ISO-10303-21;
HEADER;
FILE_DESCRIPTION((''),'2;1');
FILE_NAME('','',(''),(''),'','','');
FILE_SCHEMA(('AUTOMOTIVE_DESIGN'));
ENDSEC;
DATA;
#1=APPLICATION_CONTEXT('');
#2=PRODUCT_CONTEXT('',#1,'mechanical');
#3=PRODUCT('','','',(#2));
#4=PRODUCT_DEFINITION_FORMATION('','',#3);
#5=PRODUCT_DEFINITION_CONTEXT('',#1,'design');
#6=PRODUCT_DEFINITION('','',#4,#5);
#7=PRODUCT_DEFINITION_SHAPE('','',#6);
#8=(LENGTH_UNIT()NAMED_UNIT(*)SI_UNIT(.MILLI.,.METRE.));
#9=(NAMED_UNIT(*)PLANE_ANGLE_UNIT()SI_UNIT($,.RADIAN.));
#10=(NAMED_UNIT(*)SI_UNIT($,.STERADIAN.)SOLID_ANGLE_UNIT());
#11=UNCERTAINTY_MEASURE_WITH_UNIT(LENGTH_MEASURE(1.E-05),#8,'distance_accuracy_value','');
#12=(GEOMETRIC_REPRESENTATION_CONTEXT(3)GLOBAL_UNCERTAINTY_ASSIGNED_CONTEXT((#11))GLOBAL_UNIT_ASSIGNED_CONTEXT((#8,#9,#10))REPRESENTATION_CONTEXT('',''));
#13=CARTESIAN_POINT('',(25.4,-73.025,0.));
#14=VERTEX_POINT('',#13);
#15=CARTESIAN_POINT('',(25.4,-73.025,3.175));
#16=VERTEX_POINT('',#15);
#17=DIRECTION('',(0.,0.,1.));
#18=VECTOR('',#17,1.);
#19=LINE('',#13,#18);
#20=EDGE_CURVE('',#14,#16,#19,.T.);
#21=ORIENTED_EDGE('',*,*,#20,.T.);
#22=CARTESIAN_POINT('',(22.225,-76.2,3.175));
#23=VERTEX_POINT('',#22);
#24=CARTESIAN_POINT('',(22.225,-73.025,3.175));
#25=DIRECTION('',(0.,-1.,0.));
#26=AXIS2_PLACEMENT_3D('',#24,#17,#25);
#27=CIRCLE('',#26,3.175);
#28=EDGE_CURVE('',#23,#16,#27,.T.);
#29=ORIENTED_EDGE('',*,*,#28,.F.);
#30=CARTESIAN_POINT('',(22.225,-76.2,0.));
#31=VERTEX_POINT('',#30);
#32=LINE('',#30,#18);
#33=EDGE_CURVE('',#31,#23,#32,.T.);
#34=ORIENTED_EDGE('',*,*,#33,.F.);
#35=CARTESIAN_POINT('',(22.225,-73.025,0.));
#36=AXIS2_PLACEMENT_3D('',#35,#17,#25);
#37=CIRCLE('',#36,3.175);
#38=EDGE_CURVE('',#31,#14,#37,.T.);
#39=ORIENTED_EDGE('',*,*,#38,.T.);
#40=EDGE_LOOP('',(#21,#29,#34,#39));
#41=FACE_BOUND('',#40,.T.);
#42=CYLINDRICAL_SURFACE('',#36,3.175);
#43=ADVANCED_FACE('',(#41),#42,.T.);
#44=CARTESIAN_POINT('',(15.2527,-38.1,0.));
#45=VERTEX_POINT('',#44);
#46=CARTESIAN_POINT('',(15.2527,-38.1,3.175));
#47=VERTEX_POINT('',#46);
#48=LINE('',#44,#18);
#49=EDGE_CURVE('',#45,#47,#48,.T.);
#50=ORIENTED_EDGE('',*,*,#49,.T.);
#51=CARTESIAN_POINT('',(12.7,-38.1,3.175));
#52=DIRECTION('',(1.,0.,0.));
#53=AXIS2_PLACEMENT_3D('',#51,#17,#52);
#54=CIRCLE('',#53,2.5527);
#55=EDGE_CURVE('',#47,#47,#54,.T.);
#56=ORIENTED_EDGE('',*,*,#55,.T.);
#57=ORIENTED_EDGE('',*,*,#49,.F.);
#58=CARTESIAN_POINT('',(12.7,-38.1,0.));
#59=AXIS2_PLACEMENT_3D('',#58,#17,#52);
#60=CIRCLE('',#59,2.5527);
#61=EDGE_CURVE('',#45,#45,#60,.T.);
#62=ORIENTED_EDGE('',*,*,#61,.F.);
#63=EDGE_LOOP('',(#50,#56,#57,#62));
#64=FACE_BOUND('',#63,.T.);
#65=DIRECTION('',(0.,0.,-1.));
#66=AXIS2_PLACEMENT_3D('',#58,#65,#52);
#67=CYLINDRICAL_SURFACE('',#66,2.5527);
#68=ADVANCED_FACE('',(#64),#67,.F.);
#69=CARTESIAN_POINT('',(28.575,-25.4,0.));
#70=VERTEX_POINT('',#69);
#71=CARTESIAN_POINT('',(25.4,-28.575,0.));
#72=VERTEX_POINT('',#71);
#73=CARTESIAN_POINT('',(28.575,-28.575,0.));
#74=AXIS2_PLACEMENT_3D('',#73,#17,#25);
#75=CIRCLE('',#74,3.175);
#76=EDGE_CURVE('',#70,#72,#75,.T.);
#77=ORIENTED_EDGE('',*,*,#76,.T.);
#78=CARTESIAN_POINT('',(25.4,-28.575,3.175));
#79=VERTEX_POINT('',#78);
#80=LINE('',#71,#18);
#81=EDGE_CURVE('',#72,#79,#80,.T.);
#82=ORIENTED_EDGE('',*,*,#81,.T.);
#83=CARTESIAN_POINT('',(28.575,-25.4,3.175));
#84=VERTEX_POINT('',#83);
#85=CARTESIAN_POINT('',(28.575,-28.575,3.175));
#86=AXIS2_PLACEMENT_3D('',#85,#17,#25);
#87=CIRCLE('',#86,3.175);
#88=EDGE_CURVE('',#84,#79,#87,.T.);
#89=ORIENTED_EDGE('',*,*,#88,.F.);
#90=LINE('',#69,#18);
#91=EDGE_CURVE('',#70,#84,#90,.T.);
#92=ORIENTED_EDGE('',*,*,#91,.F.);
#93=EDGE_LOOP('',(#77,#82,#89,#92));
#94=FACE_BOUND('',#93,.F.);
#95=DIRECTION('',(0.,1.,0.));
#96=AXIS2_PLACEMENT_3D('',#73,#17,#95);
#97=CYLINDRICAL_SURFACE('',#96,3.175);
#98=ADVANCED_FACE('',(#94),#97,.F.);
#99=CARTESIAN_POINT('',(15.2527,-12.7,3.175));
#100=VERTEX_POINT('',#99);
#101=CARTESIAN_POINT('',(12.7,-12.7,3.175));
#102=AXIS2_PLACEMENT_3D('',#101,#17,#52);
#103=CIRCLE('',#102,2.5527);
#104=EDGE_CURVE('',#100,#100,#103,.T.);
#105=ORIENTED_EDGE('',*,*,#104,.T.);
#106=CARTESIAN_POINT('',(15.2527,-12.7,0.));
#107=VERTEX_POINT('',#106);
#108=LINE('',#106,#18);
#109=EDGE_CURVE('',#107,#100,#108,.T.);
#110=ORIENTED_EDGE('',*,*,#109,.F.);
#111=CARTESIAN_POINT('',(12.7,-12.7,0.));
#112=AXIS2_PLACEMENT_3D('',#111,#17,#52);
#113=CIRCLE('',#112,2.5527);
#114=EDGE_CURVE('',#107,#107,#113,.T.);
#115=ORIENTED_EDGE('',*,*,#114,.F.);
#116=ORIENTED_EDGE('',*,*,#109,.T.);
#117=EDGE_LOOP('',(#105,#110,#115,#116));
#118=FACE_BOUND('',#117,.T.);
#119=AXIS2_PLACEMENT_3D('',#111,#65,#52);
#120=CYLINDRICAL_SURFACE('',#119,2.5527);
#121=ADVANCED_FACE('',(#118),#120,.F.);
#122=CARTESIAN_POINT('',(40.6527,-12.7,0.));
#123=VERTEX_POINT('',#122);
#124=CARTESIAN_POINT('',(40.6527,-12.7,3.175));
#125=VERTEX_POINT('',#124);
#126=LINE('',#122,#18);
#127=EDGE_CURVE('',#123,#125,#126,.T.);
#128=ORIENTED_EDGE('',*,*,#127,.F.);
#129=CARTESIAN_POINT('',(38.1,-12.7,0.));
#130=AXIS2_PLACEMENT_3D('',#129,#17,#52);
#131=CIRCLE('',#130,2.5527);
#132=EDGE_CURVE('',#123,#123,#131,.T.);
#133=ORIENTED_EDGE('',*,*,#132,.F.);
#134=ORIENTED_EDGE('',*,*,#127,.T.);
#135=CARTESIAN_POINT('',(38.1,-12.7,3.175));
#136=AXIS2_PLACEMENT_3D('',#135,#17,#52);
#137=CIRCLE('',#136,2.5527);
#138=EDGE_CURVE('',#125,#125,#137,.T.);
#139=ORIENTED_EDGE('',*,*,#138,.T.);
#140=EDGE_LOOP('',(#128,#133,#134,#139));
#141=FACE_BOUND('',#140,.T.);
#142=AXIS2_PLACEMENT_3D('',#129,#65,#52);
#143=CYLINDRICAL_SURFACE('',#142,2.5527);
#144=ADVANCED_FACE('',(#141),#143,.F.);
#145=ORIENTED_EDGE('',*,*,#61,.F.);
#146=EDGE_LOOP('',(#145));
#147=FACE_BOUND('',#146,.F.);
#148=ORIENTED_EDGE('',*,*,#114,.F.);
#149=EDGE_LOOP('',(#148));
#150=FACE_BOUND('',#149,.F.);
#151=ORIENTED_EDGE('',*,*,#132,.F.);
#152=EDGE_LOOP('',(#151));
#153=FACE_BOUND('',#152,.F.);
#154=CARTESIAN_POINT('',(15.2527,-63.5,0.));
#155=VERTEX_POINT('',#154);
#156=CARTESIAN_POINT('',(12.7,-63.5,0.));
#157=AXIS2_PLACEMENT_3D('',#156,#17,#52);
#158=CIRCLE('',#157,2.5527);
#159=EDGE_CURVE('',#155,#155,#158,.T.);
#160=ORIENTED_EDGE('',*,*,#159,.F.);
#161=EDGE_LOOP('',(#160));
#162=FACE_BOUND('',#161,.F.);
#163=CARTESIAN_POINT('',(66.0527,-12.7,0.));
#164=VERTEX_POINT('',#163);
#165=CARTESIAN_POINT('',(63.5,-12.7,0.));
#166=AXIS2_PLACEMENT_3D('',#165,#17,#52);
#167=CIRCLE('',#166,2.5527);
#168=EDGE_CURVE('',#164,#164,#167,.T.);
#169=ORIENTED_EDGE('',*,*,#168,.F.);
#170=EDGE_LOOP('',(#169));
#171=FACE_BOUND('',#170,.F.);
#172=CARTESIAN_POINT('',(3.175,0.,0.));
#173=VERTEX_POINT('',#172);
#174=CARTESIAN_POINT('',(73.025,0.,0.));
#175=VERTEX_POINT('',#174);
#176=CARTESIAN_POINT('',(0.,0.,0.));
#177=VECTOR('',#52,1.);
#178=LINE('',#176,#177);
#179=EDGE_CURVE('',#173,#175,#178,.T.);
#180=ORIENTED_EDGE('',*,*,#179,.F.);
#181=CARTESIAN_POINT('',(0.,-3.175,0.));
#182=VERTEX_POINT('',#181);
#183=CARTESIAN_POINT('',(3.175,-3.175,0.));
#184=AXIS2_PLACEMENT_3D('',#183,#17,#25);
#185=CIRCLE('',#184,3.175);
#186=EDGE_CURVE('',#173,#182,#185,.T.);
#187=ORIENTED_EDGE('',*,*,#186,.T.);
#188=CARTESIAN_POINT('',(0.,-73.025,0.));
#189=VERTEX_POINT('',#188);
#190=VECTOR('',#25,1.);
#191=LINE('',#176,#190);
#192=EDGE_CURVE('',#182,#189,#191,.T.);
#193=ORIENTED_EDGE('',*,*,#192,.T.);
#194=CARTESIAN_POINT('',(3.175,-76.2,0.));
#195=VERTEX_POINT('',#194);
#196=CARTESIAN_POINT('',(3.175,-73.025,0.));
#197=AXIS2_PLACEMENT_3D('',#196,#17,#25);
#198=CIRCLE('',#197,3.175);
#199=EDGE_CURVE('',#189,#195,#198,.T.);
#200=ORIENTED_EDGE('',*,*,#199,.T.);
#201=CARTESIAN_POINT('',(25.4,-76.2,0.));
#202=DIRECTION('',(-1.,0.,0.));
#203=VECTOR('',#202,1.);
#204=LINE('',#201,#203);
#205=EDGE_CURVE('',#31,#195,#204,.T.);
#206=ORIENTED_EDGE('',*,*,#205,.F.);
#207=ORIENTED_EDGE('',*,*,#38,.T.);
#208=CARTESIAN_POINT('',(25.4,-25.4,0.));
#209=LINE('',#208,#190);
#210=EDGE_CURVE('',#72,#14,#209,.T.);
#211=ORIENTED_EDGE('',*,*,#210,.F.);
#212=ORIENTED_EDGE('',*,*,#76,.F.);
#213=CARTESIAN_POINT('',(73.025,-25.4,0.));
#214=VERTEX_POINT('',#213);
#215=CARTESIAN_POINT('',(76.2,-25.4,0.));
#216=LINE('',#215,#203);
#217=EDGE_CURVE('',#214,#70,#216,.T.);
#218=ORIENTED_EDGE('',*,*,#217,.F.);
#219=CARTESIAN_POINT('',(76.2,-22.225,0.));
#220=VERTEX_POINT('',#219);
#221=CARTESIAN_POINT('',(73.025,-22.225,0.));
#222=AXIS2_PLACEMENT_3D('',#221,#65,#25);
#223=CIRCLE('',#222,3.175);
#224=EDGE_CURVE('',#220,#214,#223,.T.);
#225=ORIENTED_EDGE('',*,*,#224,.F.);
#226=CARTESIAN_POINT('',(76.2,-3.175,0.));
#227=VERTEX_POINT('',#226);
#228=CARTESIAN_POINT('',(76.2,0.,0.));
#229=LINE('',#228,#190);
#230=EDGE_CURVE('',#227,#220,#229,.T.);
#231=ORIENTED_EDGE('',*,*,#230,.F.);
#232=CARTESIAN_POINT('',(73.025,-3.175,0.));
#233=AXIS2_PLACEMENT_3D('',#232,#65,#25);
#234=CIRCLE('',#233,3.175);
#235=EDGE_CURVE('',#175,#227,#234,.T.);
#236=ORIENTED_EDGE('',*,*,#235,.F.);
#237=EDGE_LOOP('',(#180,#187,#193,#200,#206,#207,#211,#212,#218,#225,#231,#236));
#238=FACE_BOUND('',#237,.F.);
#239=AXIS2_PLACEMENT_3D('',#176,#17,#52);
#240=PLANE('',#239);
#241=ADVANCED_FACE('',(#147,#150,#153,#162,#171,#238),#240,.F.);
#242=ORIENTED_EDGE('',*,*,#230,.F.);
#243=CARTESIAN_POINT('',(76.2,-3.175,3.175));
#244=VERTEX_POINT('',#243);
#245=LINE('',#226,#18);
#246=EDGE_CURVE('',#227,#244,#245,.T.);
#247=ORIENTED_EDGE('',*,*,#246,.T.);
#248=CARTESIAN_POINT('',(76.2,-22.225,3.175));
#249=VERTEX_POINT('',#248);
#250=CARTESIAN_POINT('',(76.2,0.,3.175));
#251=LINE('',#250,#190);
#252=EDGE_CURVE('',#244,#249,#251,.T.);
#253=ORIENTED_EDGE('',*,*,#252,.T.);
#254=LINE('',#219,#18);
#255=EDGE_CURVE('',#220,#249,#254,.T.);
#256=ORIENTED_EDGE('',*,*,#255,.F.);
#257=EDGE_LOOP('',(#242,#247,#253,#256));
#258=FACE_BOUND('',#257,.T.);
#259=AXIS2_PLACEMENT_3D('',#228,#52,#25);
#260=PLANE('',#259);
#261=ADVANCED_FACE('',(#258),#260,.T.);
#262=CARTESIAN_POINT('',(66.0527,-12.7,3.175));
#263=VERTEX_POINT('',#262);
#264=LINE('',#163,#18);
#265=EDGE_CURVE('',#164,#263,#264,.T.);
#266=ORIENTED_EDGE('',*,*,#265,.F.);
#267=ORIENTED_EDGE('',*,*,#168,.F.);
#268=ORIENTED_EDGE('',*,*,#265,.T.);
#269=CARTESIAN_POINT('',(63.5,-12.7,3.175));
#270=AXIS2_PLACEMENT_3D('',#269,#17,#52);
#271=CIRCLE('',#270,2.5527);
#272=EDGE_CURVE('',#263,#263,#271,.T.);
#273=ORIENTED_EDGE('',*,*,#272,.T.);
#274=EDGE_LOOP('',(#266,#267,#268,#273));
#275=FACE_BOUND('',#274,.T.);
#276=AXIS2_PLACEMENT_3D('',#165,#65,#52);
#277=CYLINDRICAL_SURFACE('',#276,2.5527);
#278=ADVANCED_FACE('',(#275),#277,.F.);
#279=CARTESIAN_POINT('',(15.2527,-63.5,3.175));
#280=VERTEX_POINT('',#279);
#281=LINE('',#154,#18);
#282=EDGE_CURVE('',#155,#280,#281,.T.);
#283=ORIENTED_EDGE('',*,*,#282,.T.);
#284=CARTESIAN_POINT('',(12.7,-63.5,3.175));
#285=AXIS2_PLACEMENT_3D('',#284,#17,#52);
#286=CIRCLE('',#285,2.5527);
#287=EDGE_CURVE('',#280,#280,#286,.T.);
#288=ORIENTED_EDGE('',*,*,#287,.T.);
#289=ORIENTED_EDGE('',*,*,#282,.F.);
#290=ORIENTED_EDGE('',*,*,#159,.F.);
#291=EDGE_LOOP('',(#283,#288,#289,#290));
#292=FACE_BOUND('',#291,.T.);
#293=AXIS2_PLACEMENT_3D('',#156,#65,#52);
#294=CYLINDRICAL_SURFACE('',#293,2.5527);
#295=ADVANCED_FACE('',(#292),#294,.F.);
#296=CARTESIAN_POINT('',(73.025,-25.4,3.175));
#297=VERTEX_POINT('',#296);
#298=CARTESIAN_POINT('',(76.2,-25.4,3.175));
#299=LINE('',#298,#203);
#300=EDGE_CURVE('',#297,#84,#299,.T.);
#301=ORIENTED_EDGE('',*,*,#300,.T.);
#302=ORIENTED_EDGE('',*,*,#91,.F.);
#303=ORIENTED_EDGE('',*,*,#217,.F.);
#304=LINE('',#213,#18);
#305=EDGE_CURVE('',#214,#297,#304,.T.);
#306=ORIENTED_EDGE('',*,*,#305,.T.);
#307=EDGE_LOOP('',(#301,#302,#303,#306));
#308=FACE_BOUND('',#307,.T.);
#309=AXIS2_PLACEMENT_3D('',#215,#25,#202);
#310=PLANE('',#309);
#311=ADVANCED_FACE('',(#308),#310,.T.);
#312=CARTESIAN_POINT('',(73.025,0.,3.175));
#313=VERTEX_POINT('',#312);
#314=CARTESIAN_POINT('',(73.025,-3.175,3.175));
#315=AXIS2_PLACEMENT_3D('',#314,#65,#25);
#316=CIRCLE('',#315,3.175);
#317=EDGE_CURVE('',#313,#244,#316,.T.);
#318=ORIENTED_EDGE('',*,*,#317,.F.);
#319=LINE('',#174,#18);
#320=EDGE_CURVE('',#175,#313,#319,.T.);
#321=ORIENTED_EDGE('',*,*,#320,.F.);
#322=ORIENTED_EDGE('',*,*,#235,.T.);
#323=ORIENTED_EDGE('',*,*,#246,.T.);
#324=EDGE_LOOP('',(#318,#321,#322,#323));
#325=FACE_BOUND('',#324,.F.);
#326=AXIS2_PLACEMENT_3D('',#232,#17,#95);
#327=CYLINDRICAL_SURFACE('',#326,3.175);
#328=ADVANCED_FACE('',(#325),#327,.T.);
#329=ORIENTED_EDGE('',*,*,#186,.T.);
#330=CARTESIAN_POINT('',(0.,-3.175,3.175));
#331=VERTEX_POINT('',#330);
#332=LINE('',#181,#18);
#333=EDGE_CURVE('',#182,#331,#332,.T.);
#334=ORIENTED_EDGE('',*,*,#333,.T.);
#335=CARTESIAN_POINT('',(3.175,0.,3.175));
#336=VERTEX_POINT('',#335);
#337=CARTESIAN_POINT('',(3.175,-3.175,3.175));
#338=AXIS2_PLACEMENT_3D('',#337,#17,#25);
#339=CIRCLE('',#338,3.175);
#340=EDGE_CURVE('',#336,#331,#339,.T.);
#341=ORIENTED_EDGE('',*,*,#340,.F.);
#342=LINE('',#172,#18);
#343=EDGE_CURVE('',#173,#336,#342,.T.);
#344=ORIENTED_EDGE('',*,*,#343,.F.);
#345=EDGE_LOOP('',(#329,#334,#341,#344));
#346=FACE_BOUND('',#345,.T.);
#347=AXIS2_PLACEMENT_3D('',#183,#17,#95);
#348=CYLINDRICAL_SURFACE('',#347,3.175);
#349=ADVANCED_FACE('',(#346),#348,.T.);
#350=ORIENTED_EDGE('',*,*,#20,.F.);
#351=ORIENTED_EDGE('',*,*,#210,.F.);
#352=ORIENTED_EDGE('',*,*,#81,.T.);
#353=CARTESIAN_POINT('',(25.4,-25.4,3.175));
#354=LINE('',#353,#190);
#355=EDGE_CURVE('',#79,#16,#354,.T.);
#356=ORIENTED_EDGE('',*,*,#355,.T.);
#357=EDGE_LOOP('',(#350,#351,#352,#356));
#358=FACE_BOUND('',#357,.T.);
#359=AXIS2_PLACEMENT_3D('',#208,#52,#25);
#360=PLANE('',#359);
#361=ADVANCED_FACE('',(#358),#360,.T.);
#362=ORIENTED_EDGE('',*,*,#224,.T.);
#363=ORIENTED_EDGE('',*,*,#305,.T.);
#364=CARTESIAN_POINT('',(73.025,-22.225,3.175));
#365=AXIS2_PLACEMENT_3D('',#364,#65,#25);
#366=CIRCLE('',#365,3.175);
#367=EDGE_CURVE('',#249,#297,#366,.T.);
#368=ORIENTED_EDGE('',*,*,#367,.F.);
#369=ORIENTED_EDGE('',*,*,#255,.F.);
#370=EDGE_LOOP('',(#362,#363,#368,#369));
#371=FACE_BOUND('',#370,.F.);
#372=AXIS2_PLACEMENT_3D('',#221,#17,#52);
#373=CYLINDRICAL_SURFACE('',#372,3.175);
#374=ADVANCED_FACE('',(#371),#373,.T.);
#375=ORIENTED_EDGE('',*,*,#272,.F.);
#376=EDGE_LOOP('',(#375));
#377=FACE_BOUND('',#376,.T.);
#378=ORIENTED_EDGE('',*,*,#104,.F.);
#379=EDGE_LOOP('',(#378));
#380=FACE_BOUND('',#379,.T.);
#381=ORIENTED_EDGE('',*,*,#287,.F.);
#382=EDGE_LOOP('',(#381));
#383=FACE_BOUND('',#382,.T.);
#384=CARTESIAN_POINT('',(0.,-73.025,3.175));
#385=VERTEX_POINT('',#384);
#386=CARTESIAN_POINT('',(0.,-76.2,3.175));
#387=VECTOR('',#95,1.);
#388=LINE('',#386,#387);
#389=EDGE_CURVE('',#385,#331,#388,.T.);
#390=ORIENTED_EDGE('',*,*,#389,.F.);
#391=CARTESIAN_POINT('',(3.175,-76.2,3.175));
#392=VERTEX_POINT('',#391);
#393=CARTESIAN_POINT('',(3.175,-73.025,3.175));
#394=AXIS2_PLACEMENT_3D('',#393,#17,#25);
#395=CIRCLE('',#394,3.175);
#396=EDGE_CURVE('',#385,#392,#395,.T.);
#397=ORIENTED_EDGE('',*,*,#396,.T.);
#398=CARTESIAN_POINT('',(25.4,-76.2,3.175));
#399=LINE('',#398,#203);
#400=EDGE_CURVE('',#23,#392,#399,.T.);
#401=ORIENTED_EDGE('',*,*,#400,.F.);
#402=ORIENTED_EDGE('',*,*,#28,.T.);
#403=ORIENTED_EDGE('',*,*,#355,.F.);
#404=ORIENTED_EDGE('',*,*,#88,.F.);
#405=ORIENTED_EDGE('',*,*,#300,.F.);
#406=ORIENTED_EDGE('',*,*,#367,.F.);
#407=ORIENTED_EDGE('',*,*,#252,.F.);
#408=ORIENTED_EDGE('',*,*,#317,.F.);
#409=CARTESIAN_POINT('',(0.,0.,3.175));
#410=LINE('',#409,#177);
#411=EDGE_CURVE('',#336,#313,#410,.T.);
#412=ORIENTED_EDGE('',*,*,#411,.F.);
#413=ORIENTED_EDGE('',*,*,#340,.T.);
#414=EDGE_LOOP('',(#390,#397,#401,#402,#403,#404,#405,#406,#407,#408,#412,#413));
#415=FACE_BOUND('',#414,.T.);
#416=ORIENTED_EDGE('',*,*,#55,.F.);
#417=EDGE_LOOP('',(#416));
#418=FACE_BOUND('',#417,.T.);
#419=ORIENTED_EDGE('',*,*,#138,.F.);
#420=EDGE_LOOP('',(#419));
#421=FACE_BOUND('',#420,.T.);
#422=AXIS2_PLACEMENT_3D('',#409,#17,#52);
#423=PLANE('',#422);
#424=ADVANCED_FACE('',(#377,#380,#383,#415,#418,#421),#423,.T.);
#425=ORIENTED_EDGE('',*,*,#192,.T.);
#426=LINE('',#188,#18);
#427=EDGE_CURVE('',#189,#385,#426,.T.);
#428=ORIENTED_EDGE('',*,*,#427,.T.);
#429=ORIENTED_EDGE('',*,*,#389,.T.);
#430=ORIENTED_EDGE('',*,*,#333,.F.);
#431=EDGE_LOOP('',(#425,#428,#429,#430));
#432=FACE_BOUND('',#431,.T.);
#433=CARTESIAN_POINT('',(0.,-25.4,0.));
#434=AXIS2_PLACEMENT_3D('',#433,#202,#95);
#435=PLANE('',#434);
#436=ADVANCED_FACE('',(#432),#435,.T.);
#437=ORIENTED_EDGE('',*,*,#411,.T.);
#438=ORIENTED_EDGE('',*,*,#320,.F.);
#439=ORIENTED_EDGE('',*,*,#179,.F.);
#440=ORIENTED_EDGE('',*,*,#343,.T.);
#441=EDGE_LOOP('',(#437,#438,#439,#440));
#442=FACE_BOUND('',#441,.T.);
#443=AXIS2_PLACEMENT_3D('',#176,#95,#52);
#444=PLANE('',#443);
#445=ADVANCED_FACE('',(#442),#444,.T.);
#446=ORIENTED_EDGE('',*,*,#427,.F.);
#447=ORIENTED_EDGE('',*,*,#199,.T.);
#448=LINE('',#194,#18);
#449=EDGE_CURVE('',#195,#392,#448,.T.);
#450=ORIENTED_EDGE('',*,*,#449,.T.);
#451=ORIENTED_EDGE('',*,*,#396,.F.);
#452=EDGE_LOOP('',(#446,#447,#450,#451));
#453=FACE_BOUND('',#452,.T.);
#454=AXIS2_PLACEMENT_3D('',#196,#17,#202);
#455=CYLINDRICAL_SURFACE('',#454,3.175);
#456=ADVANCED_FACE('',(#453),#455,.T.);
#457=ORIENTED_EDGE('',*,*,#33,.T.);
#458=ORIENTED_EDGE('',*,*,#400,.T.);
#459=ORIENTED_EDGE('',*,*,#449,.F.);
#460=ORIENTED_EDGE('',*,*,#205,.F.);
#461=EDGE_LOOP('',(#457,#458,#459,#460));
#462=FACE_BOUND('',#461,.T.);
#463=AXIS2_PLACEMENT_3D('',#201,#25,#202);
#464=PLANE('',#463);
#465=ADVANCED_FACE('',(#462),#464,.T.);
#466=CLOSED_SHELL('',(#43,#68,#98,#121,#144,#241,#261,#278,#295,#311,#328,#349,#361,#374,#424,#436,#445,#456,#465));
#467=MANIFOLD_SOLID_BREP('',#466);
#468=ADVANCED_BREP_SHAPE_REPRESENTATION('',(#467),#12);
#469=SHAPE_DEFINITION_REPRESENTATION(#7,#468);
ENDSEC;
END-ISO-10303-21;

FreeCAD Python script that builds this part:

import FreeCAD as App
import Part
import Sketcher
from FreeCAD import Vector
Q = App.Units.Quantity


def edges_at(feature, points):
    """Names of the edges that pass closest to the given points."""
    edges = feature.Shape.Edges
    near = lambda p: min(range(len(edges)), key=lambda i: edges[i].distToShape(Part.Vertex(*p))[0])
    return sorted({f"Edge{near(p) + 1}" for p in points})


def add_polygon(sketch, points):
    """Adds a closed chain of lines whose ends are joined by coincident constraints."""
    first, n = sketch.GeometryCount, len(points)
    for a, b in zip(points, points[1:] + points[:1]):
        sketch.addGeometry(Part.LineSegment(App.Vector(*a, 0), App.Vector(*b, 0)), False)
    for i in range(n):
        sketch.addConstraint(Sketcher.Constraint("Coincident", first + i, 2, first + (i + 1) % n, 1))

doc = App.newDocument("Part")
params = doc.addObject("Spreadsheet::Sheet", "Params")
for row, (alias, value) in enumerate([
    ("sketch1_width", "3 in"),
    ("sketch1_width2", "1 in"),
    ("sketch1_diameter", "0.201 in"),
    ("pad1_length", "0.125 in"),
    ("fillet_radius", "0.125 in"),
], start=1):
    params.set(f"A{row}", alias)
    params.set(f"B{row}", "=" + value)
    params.setAlias(f"B{row}", alias)

body = doc.addObject("PartDesign::Body", "Body")

# Sketch on XY plane
sketch1 = body.newObject("Sketcher::SketchObject", "Sketch")
sketch1.AttachmentSupport = (doc.getObject("XY_Plane"), [""])
sketch1.MapMode = "FlatFace"
add_polygon(sketch1, [(76.2, 0), (0, 0), (0, -76.2), (25.4, -76.2), (25.4, -25.4), (76.2, -25.4)])  # lines 0-5
sketch1.addGeometry(Part.Circle(Vector(12.7, -12.7, 0), Vector(0, 0, 1), 2.5527), False)  # 6
sketch1.addGeometry(Part.Circle(Vector(38.1, -12.7, 0), Vector(0, 0, 1), 2.5527), False)  # 7
sketch1.addGeometry(Part.Circle(Vector(63.5, -12.7, 0), Vector(0, 0, 1), 2.5527), False)  # 8
sketch1.addGeometry(Part.Circle(Vector(12.7, -38.1, 0), Vector(0, 0, 1), 2.5527), False)  # 9
sketch1.addGeometry(Part.Circle(Vector(12.7, -63.5, 0), Vector(0, 0, 1), 2.5527), False)  # 10
sketch1.addConstraint([
    Sketcher.Constraint("Horizontal", 0),
    Sketcher.Constraint("Vertical", 1),
    Sketcher.Constraint("Horizontal", 2),
    Sketcher.Constraint("Vertical", 3),
    Sketcher.Constraint("Horizontal", 4),
    Sketcher.Constraint("Vertical", 5),
    Sketcher.Constraint("Coincident", 0, 2, -1, 1),
    Sketcher.Constraint("Equal", 6, 7),
    Sketcher.Constraint("Equal", 7, 8),
    Sketcher.Constraint("Equal", 8, 9),
    Sketcher.Constraint("Equal", 9, 10),
    Sketcher.Constraint("Horizontal", 6, 3, 7, 3),
    Sketcher.Constraint("Horizontal", 7, 3, 8, 3),
    Sketcher.Constraint("Vertical", 6, 3, 9, 3),
    Sketcher.Constraint("Vertical", 9, 3, 10, 3),
    Sketcher.Constraint("Equal", 0, 1),
    Sketcher.Constraint("Equal", 4, 3),
    Sketcher.Constraint("DistanceX", 0, 2, 0, 1, Q("3 in")),
    Sketcher.Constraint("DistanceX", 2, 1, 2, 2, Q("1 in")),
    Sketcher.Constraint("Diameter", 6, Q("0.201 in")),
    Sketcher.Constraint("DistanceX", 6, 3, 7, 3, Q("1 in")),
    Sketcher.Constraint("DistanceX", 7, 3, 8, 3, Q("1 in")),
    Sketcher.Constraint("DistanceY", 9, 3, 6, 3, Q("1 in")),
    Sketcher.Constraint("DistanceY", 10, 3, 9, 3, Q("1 in")),
    Sketcher.Constraint("DistanceX", -1, 1, 6, 3, Q("0.5 in")),
    Sketcher.Constraint("DistanceY", 6, 3, -1, 1, Q("0.5 in")),
])
sketch1.setExpression("Constraints[23]", "Params.sketch1_width")
sketch1.setExpression("Constraints[24]", "Params.sketch1_width2")
sketch1.setExpression("Constraints[25]", "Params.sketch1_diameter")
pad1 = body.newObject("PartDesign::Pad", "Pad")
pad1.Profile = sketch1
pad1.setExpression("Length", "Params.pad1_length")
doc.recompute()

fillet = body.newObject("PartDesign::Fillet", "Fillet")
fillet.Base = (pad1, edges_at(pad1, [
    (25.4, -25.4, 1.587),
    (0, 0, 1.587),
    (25.4, -76.2, 1.587),
    (0, -76.2, 1.587),
    (76.2, -25.4, 1.587),
    (76.2, 0, 1.587),
]))
fillet.setExpression("Radius", "Params.fillet_radius")

doc.recompute()
